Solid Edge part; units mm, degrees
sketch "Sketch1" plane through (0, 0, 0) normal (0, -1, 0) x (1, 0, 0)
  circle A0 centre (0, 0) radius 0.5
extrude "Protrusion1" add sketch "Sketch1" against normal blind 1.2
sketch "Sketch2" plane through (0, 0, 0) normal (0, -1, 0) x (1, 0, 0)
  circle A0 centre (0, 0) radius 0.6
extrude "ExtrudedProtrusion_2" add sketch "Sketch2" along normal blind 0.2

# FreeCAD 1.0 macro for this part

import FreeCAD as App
import Part
import Sketcher

V = App.Vector
Q = App.Units.Quantity

doc = App.newDocument("Part")
body = doc.addObject("PartDesign::Body", "Body")

sketch1 = doc.addObject("Sketcher::SketchObject", "Sketch")
body.addObject(sketch1)
sketch1.AttachmentSupport = (doc.XZ_Plane, [""])
sketch1.MapMode = "FlatFace"
sketch1.addGeometry(Part.Circle(V(0, 0, 0), V(0, 0, 1), 0.5), False)
sketch1.addConstraint([
    Sketcher.Constraint("Coincident", 0, 3, -1, 1),
    Sketcher.Constraint("Diameter", 0, Q("1 mm")),
])
pad1 = doc.addObject("PartDesign::Pad", "Pad")
body.addObject(pad1)
pad1.Profile = sketch1
pad1.Length = 1.2
pad1.Reversed = True

sketch2 = doc.addObject("Sketcher::SketchObject", "Sketch001")
body.addObject(sketch2)
sketch2.AttachmentSupport = (doc.XZ_Plane, [""])
sketch2.MapMode = "FlatFace"
sketch2.addGeometry(Part.Circle(V(0, 0, 0), V(0, 0, 1), 0.6), False)
sketch2.addConstraint([
    Sketcher.Constraint("Coincident", 0, 3, -1, 1),
    Sketcher.Constraint("Diameter", 0, Q("1.2 mm")),
])
pad2 = doc.addObject("PartDesign::Pad", "Pad001")
body.addObject(pad2)
pad2.Profile = sketch2
pad2.Length = 0.2

doc.recompute()
